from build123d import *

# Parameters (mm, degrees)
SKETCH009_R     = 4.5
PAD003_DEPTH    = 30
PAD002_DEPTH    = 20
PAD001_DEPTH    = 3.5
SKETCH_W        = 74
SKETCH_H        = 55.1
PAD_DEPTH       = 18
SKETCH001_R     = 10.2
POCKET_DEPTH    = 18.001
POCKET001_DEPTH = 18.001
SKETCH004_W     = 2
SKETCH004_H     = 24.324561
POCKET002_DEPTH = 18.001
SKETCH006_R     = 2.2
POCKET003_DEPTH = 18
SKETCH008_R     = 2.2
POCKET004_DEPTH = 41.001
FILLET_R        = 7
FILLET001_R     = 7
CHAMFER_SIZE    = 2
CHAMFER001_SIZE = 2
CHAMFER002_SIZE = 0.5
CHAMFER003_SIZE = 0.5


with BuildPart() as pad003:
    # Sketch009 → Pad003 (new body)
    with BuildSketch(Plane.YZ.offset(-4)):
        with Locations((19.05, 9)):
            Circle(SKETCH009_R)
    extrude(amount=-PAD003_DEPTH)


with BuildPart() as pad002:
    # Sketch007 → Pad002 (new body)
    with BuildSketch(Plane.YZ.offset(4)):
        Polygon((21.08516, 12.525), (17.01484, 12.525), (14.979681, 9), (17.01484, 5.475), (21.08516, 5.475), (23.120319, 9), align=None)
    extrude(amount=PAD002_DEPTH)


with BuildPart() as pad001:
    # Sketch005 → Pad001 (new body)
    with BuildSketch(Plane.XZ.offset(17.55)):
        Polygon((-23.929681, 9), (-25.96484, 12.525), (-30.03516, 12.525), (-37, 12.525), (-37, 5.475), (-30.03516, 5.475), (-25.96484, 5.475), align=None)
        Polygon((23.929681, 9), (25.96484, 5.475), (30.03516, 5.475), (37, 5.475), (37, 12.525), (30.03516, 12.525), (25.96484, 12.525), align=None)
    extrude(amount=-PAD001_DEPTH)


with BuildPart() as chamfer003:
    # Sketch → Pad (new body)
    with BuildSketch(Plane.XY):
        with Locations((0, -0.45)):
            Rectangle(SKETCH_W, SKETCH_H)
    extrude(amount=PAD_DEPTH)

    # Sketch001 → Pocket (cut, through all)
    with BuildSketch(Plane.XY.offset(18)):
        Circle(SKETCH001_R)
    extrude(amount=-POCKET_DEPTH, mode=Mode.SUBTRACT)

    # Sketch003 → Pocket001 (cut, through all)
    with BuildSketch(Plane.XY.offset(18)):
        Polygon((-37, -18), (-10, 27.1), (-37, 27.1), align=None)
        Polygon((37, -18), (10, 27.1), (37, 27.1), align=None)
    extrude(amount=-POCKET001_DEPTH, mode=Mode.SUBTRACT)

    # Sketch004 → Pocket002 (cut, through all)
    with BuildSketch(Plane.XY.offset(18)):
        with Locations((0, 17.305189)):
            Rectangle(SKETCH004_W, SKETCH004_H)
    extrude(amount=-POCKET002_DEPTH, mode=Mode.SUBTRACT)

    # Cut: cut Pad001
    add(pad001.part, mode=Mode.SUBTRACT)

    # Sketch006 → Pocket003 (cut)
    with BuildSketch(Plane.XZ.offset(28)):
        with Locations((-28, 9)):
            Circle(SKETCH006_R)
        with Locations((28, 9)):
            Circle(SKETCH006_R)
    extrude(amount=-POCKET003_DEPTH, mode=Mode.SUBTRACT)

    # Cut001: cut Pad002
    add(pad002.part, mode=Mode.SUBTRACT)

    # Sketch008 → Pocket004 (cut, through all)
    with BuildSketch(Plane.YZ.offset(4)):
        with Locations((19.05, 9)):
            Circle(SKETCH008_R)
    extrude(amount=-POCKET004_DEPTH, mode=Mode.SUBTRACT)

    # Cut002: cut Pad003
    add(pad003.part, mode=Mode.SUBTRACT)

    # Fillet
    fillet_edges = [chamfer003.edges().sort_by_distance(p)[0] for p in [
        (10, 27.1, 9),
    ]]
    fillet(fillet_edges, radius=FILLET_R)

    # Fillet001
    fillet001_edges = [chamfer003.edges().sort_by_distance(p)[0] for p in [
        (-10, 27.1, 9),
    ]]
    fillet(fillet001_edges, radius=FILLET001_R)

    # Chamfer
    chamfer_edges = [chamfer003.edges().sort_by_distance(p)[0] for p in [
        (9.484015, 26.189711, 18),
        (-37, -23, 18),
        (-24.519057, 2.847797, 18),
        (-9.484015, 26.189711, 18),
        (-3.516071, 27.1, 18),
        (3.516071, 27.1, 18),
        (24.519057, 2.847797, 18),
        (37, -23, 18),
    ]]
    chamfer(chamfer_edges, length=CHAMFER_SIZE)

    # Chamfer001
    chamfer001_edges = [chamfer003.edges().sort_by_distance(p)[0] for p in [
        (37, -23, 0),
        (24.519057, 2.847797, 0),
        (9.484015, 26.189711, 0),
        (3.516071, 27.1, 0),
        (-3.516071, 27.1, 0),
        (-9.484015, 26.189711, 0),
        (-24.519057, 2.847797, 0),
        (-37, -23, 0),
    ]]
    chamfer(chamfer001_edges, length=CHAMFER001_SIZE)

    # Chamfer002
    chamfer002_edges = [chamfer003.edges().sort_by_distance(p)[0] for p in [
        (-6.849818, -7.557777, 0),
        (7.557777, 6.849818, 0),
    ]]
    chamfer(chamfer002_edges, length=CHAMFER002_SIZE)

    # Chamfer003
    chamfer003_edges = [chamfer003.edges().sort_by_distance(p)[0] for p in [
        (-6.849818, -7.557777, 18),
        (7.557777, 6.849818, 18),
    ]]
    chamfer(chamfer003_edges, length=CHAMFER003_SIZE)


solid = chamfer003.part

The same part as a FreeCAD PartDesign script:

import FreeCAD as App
import Part
import Sketcher
Q = App.Units.Quantity


def edges_at(feature, points):
    """Names of the edges that pass closest to the given points."""
    edges = feature.Shape.Edges
    near = lambda p: min(range(len(edges)), key=lambda i: edges[i].distToShape(Part.Vertex(*p))[0])
    return sorted({f"Edge{near(p) + 1}" for p in points})


def add_polygon(sketch, points):
    """Adds a closed chain of lines whose ends are joined by coincident constraints."""
    first, n = sketch.GeometryCount, len(points)
    for a, b in zip(points, points[1:] + points[:1]):
        sketch.addGeometry(Part.LineSegment(App.Vector(*a, 0), App.Vector(*b, 0)), False)
    for i in range(n):
        sketch.addConstraint(Sketcher.Constraint("Coincident", first + i, 2, first + (i + 1) % n, 1))

doc = App.newDocument("Part")
body = doc.addObject("PartDesign::Body", "Body")

sketch1 = doc.addObject("Sketcher::SketchObject", "Sketch")
body.addObject(sketch1)
sketch1.AttachmentSupport = (doc.YZ_Plane, [""])
sketch1.MapMode = "FlatFace"
sketch1.AttachmentOffset = App.Placement(App.Vector(0, 0, -4), App.Rotation())
sketch1.addGeometry(Part.Circle(App.Vector(19.1, 9, 0), App.Vector(0, 0, 1), 4.5), False)
sketch1.addConstraint(Sketcher.Constraint("Diameter", 0, 9.0))
sketch1.addConstraint(Sketcher.Constraint("DistanceY", -1, 1, 0, 3, 9.0))
sketch1.addConstraint(Sketcher.Constraint("DistanceX", -1, 1, 0, 3, 19.05))
pad1 = doc.addObject("PartDesign::Pad", "Pad")
body.addObject(pad1)
pad1.Profile = sketch1
pad1.Length = 30
pad1.Reversed = True
body2 = doc.addObject("PartDesign::Body", "Body001")

sketch2 = doc.addObject("Sketcher::SketchObject", "Sketch001")
body2.addObject(sketch2)
sketch2.AttachmentSupport = (doc.getObject("YZ_Plane001"), [""])
sketch2.MapMode = "FlatFace"
sketch2.AttachmentOffset = App.Placement(App.Vector(0, 0, 4), App.Rotation())
add_polygon(sketch2, [(21.1, 12.5), (17, 12.5), (15, 9), (17, 5.5), (21.1, 5.5), (23.1, 9)])
sketch2.addConstraint(Sketcher.Constraint("Horizontal", 0))
sketch2.addConstraint(Sketcher.Constraint("Horizontal", 3))
sketch2.addConstraint(Sketcher.Constraint("Parallel", 1, 4))
sketch2.addConstraint(Sketcher.Constraint("Parallel", 2, 5))
sketch2.addConstraint(Sketcher.Constraint("Horizontal", 1, 2, 4, 2))
sketch2.addConstraint(Sketcher.Constraint("Vertical", 0, 2, 2, 2))
sketch2.addConstraint(Sketcher.Constraint("Vertical", 3, 2, 5, 2))
sketch2.addConstraint(Sketcher.Constraint("Angle", 1, Q("-119.999991 deg")))
sketch2.addConstraint(Sketcher.Constraint("DistanceY", -1, 1, 1, 2, 9.0))
sketch2.addConstraint(Sketcher.Constraint("DistanceY", 2, 2, 0, 2, 7.05))
sketch2.addConstraint(Sketcher.Constraint("DistanceX", 0, 2, 0, 1, 4.07032))
sketch2.addConstraint(Sketcher.Constraint("DistanceX", -1, 1, 0, 2, 17.01484))
pad2 = doc.addObject("PartDesign::Pad", "Pad001")
body2.addObject(pad2)
pad2.Profile = sketch2
pad2.Length = 20
body3 = doc.addObject("PartDesign::Body", "Body002")
body3.AllowCompound = True

sketch3 = doc.addObject("Sketcher::SketchObject", "Sketch002")
body3.addObject(sketch3)
sketch3.AttachmentSupport = (doc.getObject("XZ_Plane002"), [""])
sketch3.MapMode = "FlatFace"
sketch3.AttachmentOffset = App.Placement(App.Vector(0, 0, 17.55), App.Rotation())
add_polygon(sketch3, [(-23.9, 9), (-26, 12.5), (-37, 12.5), (-37, 5.5), (-26, 5.5)])
add_polygon(sketch3, [(23.9, 9), (26, 5.5), (37, 5.5), (37, 12.5), (26, 12.5)])
sketch3.addConstraint(Sketcher.Constraint("Horizontal", 1))
sketch3.addConstraint(Sketcher.Constraint("Vertical", 2))
sketch3.addConstraint(Sketcher.Constraint("Horizontal", 3))
sketch3.addConstraint(Sketcher.Constraint("Horizontal", 6))
sketch3.addConstraint(Sketcher.Constraint("Vertical", 7))
sketch3.addConstraint(Sketcher.Constraint("Horizontal", 8))
sketch3.addConstraint(Sketcher.Constraint("Symmetric", 3, 2, 5, 2, -2))
sketch3.addConstraint(Sketcher.Constraint("Symmetric", 1, 2, 7, 2, -2))
sketch3.addConstraint(Sketcher.Constraint("Symmetric", 4, 2, 9, 2, -2))
sketch3.addConstraint(Sketcher.Constraint("Parallel", 0, 5))
sketch3.addConstraint(Sketcher.Constraint("Parallel", 4, 9))
sketch3.addConstraint(Sketcher.Constraint("Vertical", 0, 2, 3, 2))
sketch3.addConstraint(Sketcher.Constraint("Angle", 0, Q("119.999991 deg")))
sketch3.addConstraint(Sketcher.Constraint("DistanceX", 1, 2, -1, 1, 37.0))
sketch3.addConstraint(Sketcher.Constraint("DistanceY", -1, 1, 4, 2, 9.0))
sketch3.addConstraint(Sketcher.Constraint("DistanceY", 2, 2, 2, 1, 7.05))
sketch3.addConstraint(Sketcher.Constraint("DistanceX", 1, 2, 1, 1, 11.03516))
pad3 = doc.addObject("PartDesign::Pad", "Pad002")
body3.addObject(pad3)
pad3.Profile = sketch3
pad3.Length = 3.5
pad3.Reversed = True
body4 = doc.addObject("PartDesign::Body", "Body003")

sketch4 = doc.addObject("Sketcher::SketchObject", "Sketch003")
body4.addObject(sketch4)
sketch4.AttachmentSupport = (doc.getObject("XY_Plane003"), [""])
sketch4.MapMode = "FlatFace"
add_polygon(sketch4, [(-37, 27), (-37, -28), (37, -28), (37, 27)])
sketch4.addConstraint(Sketcher.Constraint("Vertical", 0))
sketch4.addConstraint(Sketcher.Constraint("Horizontal", 1))
sketch4.addConstraint(Sketcher.Constraint("Vertical", 2))
sketch4.addConstraint(Sketcher.Constraint("Horizontal", 3))
sketch4.addConstraint(Sketcher.Constraint("DistanceX", 1, 1, 1, 2, 74.0))
sketch4.addConstraint(Sketcher.Constraint("DistanceY", 0, 2, 0, 1, 55.1))
sketch4.addConstraint(Sketcher.Constraint("DistanceX", 0, 2, -1, 1, 37.0))
sketch4.addConstraint(Sketcher.Constraint("DistanceY", 0, 2, -1, 1, 28.0))
pad4 = doc.addObject("PartDesign::Pad", "Pad003")
body4.addObject(pad4)
pad4.Profile = sketch4
pad4.Length = 18

sketch5 = doc.addObject("Sketcher::SketchObject", "Sketch004")
body4.addObject(sketch5)
sketch5.AttachmentSupport = (doc.getObject("XY_Plane003"), [""])
sketch5.MapMode = "FlatFace"
sketch5.AttachmentOffset = App.Placement(App.Vector(0, 0, 18), App.Rotation())
sketch5.addGeometry(Part.Circle(App.Vector(0, 0, 0), App.Vector(0, 0, 1), 10), False)
sketch5.addConstraint(Sketcher.Constraint("Coincident", 0, 3, -1, 1))
sketch5.addConstraint(Sketcher.Constraint("Diameter", 0, 20.4))
pocket1 = doc.addObject("PartDesign::Pocket", "Pocket")
body4.addObject(pocket1)
pocket1.Profile = sketch5
pocket1.Type = "ThroughAll"

sketch6 = doc.addObject("Sketcher::SketchObject", "Sketch005")
body4.addObject(sketch6)
sketch6.AttachmentSupport = (doc.getObject("XY_Plane003"), [""])
sketch6.MapMode = "FlatFace"
sketch6.AttachmentOffset = App.Placement(App.Vector(0, 0, 18), App.Rotation())
add_polygon(sketch6, [(-37, -18), (-10, 27), (-37, 27)])
add_polygon(sketch6, [(10, 27), (37, -18), (37, 27)])
sketch6.addConstraint(Sketcher.Constraint("Horizontal", 1))
sketch6.addConstraint(Sketcher.Constraint("Vertical", 2))
sketch6.addConstraint(Sketcher.Constraint("Vertical", 4))
sketch6.addConstraint(Sketcher.Constraint("Horizontal", 5))
sketch6.addConstraint(Sketcher.Constraint("Symmetric", 2, 2, 3, 2, -2))
sketch6.addConstraint(Sketcher.Constraint("Symmetric", 0, 2, 5, 2, -2))
sketch6.addConstraint(Sketcher.Constraint("DistanceX", 1, 2, 1, 1, 27.0))
sketch6.addConstraint(Sketcher.Constraint("DistanceY", 2, 2, 2, 1, 45.1))
sketch6.addConstraint(Sketcher.Constraint("DistanceX", 0, 2, -1, 1, 10.0))
sketch6.addConstraint(Sketcher.Constraint("DistanceY", 2, 2, -1, 1, 18.0))
pocket2 = doc.addObject("PartDesign::Pocket", "Pocket001")
body4.addObject(pocket2)
pocket2.Profile = sketch6
pocket2.Type = "ThroughAll"

sketch7 = doc.addObject("Sketcher::SketchObject", "Sketch006")
body4.addObject(sketch7)
sketch7.AttachmentSupport = (doc.getObject("XY_Plane003"), [""])
sketch7.MapMode = "FlatFace"
sketch7.AttachmentOffset = App.Placement(App.Vector(0, 0, 18), App.Rotation())
add_polygon(sketch7, [(-1, 29.5), (-1, 5.1), (1, 5.1), (1, 29.5)])
sketch7.addConstraint(Sketcher.Constraint("Vertical", 0))
sketch7.addConstraint(Sketcher.Constraint("Horizontal", 1))
sketch7.addConstraint(Sketcher.Constraint("Vertical", 2))
sketch7.addConstraint(Sketcher.Constraint("Horizontal", 3))
sketch7.addConstraint(Sketcher.Constraint("DistanceX", 1, 1, 1, 2, 2.0))
sketch7.addConstraint(Sketcher.Constraint("DistanceX", 0, 2, -1, 1, 1.0))
sketch7.addConstraint(Sketcher.Constraint("DistanceY", 0, 2, 0, 1, 24.324561))
sketch7.addConstraint(Sketcher.Constraint("DistanceY", -1, 1, 0, 2, 5.142908))
pocket3 = doc.addObject("PartDesign::Pocket", "Pocket002")
body4.addObject(pocket3)
pocket3.Profile = sketch7
pocket3.Type = "ThroughAll"
doc.recompute()

boolean = doc.addObject("PartDesign::Boolean", "Boolean")
body4.addObject(boolean)
boolean.Type = "Cut"
boolean.addObjects([body3])

sketch8 = doc.addObject("Sketcher::SketchObject", "Sketch007")
body4.addObject(sketch8)
sketch8.AttachmentSupport = (doc.getObject("XZ_Plane003"), [""])
sketch8.MapMode = "FlatFace"
sketch8.AttachmentOffset = App.Placement(App.Vector(0, 0, 28), App.Rotation())
sketch8.addGeometry(Part.Circle(App.Vector(-28, 9, 0), App.Vector(0, 0, 1), 2.2), False)
sketch8.addGeometry(Part.Circle(App.Vector(28, 9, 0), App.Vector(0, 0, 1), 2.2), False)
sketch8.addConstraint(Sketcher.Constraint("Equal", 0, 1))
sketch8.addConstraint(Sketcher.Constraint("Symmetric", 0, 3, 1, 3, -2))
sketch8.addConstraint(Sketcher.Constraint("Diameter", 0, 4.4))
sketch8.addConstraint(Sketcher.Constraint("DistanceX", 0, 3, -1, 1, 28.0))
sketch8.addConstraint(Sketcher.Constraint("DistanceY", -1, 1, 0, 3, 9.0))
pocket4 = doc.addObject("PartDesign::Pocket", "Pocket003")
body4.addObject(pocket4)
pocket4.Profile = sketch8
pocket4.Length = 18
doc.recompute()

boolean2 = doc.addObject("PartDesign::Boolean", "Boolean001")
body4.addObject(boolean2)
boolean2.Type = "Cut"
boolean2.addObjects([body2])

sketch9 = doc.addObject("Sketcher::SketchObject", "Sketch008")
body4.addObject(sketch9)
sketch9.AttachmentSupport = (doc.getObject("YZ_Plane003"), [""])
sketch9.MapMode = "FlatFace"
sketch9.AttachmentOffset = App.Placement(App.Vector(0, 0, 4), App.Rotation())
sketch9.addGeometry(Part.Circle(App.Vector(19.1, 9, 0), App.Vector(0, 0, 1), 2.2), False)
sketch9.addConstraint(Sketcher.Constraint("Diameter", 0, 4.4))
sketch9.addConstraint(Sketcher.Constraint("DistanceY", -1, 1, 0, 3, 9.0))
sketch9.addConstraint(Sketcher.Constraint("DistanceX", -1, 1, 0, 3, 19.05))
pocket5 = doc.addObject("PartDesign::Pocket", "Pocket004")
body4.addObject(pocket5)
pocket5.Profile = sketch9
pocket5.Type = "ThroughAll"
doc.recompute()

boolean3 = doc.addObject("PartDesign::Boolean", "Boolean002")
body4.addObject(boolean3)
boolean3.Type = "Cut"
boolean3.addObjects([body])
doc.recompute()

fillet = doc.addObject("PartDesign::Fillet", "Fillet")
body4.addObject(fillet)
fillet.Base = (boolean3, edges_at(boolean3, [(10, 27.1, 9)]))
fillet.Radius = 7
doc.recompute()

fillet2 = doc.addObject("PartDesign::Fillet", "Fillet001")
body4.addObject(fillet2)
fillet2.Base = (fillet, edges_at(fillet, [(-10, 27.1, 9)]))
fillet2.Radius = 7
doc.recompute()

chamfer = doc.addObject("PartDesign::Chamfer", "Chamfer")
body4.addObject(chamfer)
chamfer.Base = (fillet2, edges_at(fillet2, [
    (9.484, 26.19, 18),
    (-37, -23, 18),
    (-24.519, 2.848, 18),
    (-9.484, 26.19, 18),
    (-3.516, 27.1, 18),
    (3.516, 27.1, 18),
    (24.519, 2.848, 18),
    (37, -23, 18),
]))
chamfer.Size = 2
doc.recompute()

chamfer2 = doc.addObject("PartDesign::Chamfer", "Chamfer001")
body4.addObject(chamfer2)
chamfer2.Base = (chamfer, edges_at(chamfer, [
    (37, -23, 0),
    (24.519, 2.848, 0),
    (9.484, 26.19, 0),
    (3.516, 27.1, 0),
    (-3.516, 27.1, 0),
    (-9.484, 26.19, 0),
    (-24.519, 2.848, 0),
    (-37, -23, 0),
]))
chamfer2.Size = 2
doc.recompute()

chamfer3 = doc.addObject("PartDesign::Chamfer", "Chamfer002")
body4.addObject(chamfer3)
chamfer3.Base = (chamfer2, edges_at(chamfer2, [(0, -10.2, 0), (0, -10.2, 0)]))
chamfer3.Size = 0.5
doc.recompute()

chamfer4 = doc.addObject("PartDesign::Chamfer", "Chamfer003")
body4.addObject(chamfer4)
chamfer4.Base = (chamfer3, edges_at(chamfer3, [(0, -10.2, 18), (0, -10.2, 18)]))
chamfer4.Size = 0.5

doc.recompute()
